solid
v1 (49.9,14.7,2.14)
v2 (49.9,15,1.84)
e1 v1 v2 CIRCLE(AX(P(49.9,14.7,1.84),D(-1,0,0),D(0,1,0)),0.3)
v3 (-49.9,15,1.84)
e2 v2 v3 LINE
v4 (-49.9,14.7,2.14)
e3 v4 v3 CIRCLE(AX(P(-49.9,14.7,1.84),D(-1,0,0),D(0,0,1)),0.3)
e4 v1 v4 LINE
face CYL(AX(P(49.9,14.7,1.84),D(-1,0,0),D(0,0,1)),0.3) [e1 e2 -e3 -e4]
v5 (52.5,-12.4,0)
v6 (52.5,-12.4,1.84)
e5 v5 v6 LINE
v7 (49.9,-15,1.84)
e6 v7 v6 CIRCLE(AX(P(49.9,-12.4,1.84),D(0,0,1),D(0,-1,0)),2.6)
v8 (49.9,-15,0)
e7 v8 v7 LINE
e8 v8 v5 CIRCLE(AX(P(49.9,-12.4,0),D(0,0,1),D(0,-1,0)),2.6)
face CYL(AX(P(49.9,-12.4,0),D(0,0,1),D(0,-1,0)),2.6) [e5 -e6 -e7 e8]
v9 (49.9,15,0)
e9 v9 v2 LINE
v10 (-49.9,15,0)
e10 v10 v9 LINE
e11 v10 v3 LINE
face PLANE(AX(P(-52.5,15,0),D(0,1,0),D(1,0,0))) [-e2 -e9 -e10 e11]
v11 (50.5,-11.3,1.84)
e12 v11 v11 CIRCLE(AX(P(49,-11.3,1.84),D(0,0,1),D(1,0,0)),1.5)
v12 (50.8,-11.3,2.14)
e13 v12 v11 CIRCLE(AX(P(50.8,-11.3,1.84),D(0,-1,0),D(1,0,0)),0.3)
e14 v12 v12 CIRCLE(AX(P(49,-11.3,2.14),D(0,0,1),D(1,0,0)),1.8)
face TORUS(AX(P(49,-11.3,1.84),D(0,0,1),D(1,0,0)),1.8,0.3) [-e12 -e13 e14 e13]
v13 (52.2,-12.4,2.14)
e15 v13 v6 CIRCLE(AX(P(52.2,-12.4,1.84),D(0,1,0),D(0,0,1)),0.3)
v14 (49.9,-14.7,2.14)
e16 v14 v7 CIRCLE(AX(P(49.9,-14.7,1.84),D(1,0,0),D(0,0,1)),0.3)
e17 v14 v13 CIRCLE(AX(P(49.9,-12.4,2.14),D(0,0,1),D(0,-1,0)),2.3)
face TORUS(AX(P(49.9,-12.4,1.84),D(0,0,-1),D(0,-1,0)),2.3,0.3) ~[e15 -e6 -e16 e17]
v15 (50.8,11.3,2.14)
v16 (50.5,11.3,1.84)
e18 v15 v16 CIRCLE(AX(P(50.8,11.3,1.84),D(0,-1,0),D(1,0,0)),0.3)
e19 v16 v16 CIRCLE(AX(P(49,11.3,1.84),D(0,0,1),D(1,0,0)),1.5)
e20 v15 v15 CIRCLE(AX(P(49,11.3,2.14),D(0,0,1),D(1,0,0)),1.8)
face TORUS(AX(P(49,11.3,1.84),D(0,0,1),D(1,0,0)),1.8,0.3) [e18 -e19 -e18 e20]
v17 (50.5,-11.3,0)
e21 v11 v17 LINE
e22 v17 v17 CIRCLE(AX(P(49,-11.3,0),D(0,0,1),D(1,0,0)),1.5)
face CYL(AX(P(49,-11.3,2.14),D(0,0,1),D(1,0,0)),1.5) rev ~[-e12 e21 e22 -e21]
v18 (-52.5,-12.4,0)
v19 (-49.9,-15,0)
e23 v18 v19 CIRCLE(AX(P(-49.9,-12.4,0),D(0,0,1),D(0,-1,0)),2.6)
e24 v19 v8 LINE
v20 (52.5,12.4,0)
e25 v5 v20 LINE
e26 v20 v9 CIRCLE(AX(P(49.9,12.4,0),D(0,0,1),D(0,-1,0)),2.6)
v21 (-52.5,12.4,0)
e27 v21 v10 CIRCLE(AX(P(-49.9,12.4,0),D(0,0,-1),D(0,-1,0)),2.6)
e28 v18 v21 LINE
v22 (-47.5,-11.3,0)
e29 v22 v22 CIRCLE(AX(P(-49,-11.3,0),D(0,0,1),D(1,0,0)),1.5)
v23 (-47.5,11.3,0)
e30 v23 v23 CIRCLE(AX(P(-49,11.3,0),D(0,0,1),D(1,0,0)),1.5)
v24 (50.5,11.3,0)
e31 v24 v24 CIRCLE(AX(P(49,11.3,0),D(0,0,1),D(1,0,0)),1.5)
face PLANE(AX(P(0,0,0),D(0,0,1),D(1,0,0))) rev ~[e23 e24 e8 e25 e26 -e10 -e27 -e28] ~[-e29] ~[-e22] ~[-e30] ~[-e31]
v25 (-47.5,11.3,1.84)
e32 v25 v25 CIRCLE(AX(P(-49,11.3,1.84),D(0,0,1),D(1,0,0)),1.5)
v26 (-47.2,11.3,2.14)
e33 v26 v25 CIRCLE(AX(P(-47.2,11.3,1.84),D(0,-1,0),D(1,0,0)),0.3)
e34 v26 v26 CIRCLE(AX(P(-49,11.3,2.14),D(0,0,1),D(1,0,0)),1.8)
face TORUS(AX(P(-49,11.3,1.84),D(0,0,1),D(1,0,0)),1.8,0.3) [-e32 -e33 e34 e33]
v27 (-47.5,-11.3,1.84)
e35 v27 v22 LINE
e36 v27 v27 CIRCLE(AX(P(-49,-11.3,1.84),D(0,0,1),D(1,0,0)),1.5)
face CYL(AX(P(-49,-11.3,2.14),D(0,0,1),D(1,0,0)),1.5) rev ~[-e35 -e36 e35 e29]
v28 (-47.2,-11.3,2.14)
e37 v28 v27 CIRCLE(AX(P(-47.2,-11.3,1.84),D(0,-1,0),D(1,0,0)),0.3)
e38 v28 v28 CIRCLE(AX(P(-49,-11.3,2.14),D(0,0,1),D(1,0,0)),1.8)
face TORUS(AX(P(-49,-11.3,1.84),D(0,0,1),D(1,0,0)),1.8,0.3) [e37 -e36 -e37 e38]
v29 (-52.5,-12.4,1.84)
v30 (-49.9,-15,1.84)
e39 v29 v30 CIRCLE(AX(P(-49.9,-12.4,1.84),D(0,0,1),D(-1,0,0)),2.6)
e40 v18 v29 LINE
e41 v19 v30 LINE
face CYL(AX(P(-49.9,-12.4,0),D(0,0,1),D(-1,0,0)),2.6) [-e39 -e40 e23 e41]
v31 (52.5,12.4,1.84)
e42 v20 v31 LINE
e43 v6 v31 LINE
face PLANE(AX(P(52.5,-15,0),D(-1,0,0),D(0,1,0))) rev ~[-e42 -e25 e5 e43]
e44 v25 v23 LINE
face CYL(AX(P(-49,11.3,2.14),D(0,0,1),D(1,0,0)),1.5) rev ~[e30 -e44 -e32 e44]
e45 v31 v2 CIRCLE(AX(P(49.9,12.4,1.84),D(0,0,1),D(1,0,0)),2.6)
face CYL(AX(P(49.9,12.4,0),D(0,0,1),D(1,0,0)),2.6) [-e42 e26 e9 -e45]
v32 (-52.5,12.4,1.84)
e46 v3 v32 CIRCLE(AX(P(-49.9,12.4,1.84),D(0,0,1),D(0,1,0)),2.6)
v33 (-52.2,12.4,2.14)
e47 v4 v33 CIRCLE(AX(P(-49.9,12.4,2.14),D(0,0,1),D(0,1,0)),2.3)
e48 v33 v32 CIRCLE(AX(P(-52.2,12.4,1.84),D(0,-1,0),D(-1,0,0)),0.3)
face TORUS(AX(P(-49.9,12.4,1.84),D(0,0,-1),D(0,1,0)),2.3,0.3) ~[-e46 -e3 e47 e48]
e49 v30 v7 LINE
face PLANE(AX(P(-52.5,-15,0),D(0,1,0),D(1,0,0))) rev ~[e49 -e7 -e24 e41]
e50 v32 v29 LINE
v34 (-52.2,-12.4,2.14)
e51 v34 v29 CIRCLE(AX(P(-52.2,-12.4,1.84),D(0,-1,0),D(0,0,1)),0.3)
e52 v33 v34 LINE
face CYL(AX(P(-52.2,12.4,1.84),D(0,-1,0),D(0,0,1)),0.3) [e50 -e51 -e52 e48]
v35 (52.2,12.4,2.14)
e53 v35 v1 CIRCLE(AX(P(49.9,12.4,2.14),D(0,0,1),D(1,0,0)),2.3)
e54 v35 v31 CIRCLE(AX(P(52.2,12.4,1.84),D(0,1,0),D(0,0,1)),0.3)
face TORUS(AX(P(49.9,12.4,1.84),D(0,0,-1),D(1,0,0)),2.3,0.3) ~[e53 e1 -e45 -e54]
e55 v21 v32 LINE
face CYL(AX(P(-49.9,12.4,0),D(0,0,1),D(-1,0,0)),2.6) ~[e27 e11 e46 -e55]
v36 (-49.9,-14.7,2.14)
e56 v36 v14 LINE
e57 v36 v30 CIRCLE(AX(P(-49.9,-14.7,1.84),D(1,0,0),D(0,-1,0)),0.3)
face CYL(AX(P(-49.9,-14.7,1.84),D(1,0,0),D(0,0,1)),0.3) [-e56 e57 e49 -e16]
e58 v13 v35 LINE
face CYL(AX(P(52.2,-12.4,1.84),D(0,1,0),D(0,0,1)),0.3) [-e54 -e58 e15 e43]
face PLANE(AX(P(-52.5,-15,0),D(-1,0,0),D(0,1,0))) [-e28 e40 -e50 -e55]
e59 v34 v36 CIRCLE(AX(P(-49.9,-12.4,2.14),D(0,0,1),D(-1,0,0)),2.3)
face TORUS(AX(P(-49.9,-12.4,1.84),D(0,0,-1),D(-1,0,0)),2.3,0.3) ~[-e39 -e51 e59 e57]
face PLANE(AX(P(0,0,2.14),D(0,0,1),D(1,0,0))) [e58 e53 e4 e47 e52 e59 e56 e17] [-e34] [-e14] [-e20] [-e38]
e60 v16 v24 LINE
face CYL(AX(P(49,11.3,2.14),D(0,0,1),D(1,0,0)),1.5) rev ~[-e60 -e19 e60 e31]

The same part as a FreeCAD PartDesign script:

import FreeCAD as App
import Part
import Sketcher
from FreeCAD import Vector
Q = App.Units.Quantity


def edges_at(feature, points):
    """Names of the edges that pass closest to the given points."""
    edges = feature.Shape.Edges
    near = lambda p: min(range(len(edges)), key=lambda i: edges[i].distToShape(Part.Vertex(*p))[0])
    return sorted({f"Edge{near(p) + 1}" for p in points})

doc = App.newDocument("Part")
body = doc.addObject("PartDesign::Body", "Body")

sketch1 = body.newObject("Sketcher::SketchObject", "Sketch")
sketch1.AttachmentSupport = (doc.getObject("XY_Plane"), [""])
sketch1.MapMode = "FlatFace"
sketch1.addGeometry([
    Part.LineSegment(Vector(-52, 15, 0), Vector(-52, -15, 0)),
    Part.LineSegment(Vector(-52, -15, 0), Vector(52, -15, 0)),
    Part.LineSegment(Vector(52, -15, 0), Vector(52, 15, 0)),
    Part.LineSegment(Vector(52, 15, 0), Vector(-52, 15, 0)),
], False)
sketch1.addConstraint([
    Sketcher.Constraint("Coincident", 0, 2, 1, 1),
    Sketcher.Constraint("Coincident", 1, 2, 2, 1),
    Sketcher.Constraint("Coincident", 2, 2, 3, 1),
    Sketcher.Constraint("Coincident", 3, 2, 0, 1),
    Sketcher.Constraint("Vertical", 0),
    Sketcher.Constraint("Horizontal", 1),
    Sketcher.Constraint("Vertical", 2),
    Sketcher.Constraint("Horizontal", 3),
    Sketcher.Constraint("Symmetric", 0, 2, 2, 2, -1, 1),
    Sketcher.Constraint("DistanceX", 1, 1, 1, 2, Q("105 mm")),
    Sketcher.Constraint("DistanceY", 0, 2, 0, 1, Q("30 mm")),
])
pad1 = body.newObject("PartDesign::Pad", "Pad")
pad1.Profile = sketch1
pad1.Length = 2.14
doc.recompute()

fillet = body.newObject("PartDesign::Fillet", "Fillet")
fillet.Base = (pad1, edges_at(pad1, [
    (-52.5, -15, 1.07),
    (-52.5, 15, 1.07),
    (52.5, 15, 1.07),
    (52.5, -15, 1.07),
]))
fillet.Radius = 2.6

sketch2 = body.newObject("Sketcher::SketchObject", "Sketch001")
sketch2.AttachmentSupport = (doc.getObject("XY_Plane"), [""])
sketch2.MapMode = "FlatFace"
sketch2.AttachmentOffset = App.Placement(Vector(0, 0, 2.14), App.Rotation())
sketch2.addGeometry([
    Part.Circle(Vector(-49, 11.3, 0), Vector(0, 0, 1), 1.5),
    Part.Circle(Vector(-49, -11.3, 0), Vector(0, 0, 1), 1.5),
    Part.Circle(Vector(49, -11.3, 0), Vector(0, 0, 1), 1.5),
    Part.Circle(Vector(49, 11.3, 0), Vector(0, 0, 1), 1.5),
], False)
sketch2.addConstraint([
    Sketcher.Constraint("Equal", 0, 1),
    Sketcher.Constraint("Equal", 1, 2),
    Sketcher.Constraint("Equal", 2, 3),
    Sketcher.Constraint("Symmetric", 0, 3, 2, 3, -1, 1),
    Sketcher.Constraint("Symmetric", 1, 3, 3, 3, -1, 1),
    Sketcher.Constraint("Symmetric", 1, 3, 2, 3, -2),
    Sketcher.Constraint("Diameter", 0, Q("3 mm")),
    Sketcher.Constraint("DistanceX", 0, 3, -1, 1, Q("49 mm")),
    Sketcher.Constraint("DistanceY", -1, 1, 0, 3, Q("11.3 mm")),
])
pocket1 = body.newObject("PartDesign::Pocket", "Pocket")
pocket1.Profile = sketch2
pocket1.Type = "ThroughAll"
doc.recompute()

fillet2 = body.newObject("PartDesign::Fillet", "Fillet001")
fillet2.Base = (pocket1, edges_at(pocket1, [
    (52.5, 0, 2.14),
    (51.738, -14.238, 2.14),
    (51.738, 14.238, 2.14),
    (0, -15, 2.14),
    (0, 15, 2.14),
    (-51.738, -14.238, 2.14),
    (-51.738, 14.238, 2.14),
    (-52.5, 0, 2.14),
    (-50.5, -11.3, 2.14),
    (47.5, -11.3, 2.14),
    (-50.5, 11.3, 2.14),
    (47.5, 11.3, 2.14),
]))
fillet2.Radius = 0.3

doc.recompute()
